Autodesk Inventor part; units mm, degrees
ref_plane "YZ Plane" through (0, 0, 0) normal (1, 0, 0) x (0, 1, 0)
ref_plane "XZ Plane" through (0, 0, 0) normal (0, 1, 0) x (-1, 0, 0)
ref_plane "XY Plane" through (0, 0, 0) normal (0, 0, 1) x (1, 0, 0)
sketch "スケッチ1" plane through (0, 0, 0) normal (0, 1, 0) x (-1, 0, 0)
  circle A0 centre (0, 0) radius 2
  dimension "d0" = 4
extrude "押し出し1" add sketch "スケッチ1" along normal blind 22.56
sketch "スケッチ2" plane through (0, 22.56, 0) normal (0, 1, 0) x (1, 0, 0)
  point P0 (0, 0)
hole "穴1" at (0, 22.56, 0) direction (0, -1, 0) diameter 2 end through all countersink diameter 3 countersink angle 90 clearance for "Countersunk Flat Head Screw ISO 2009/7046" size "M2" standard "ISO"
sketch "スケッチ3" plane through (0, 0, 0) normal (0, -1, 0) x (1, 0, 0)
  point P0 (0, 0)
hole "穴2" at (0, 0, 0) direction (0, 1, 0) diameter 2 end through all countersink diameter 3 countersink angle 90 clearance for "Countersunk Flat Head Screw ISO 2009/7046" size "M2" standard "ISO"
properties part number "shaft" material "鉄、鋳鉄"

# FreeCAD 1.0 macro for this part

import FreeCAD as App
import Part
import Sketcher
from FreeCAD import Vector
Q = App.Units.Quantity

doc = App.newDocument("Part")
body = doc.addObject("PartDesign::Body", "Body")

# Sketch on XZ plane
sketch1 = doc.addObject("Sketcher::SketchObject", "Sketch")
body.addObject(sketch1)
sketch1.AttachmentSupport = (doc.XZ_Plane, [""])
sketch1.MapMode = "FlatFace"
sketch1.addGeometry(Part.Circle(Vector(0, 0, 0), Vector(0, 0, 1), 2), False)
sketch1.addConstraint(Sketcher.Constraint("Coincident", 0, 3, -1, 1))
sketch1.addConstraint(Sketcher.Constraint("Diameter", 0, Q("4 mm")))
pad1 = doc.addObject("PartDesign::Pad", "Pad")
body.addObject(pad1)
pad1.Profile = sketch1
pad1.Length = 22.56
pad1.Reversed = True

# Sketch on XZ plane
sketch2 = doc.addObject("Sketcher::SketchObject", "Sketch001")
body.addObject(sketch2)
sketch2.AttachmentSupport = (doc.XZ_Plane, [""])
sketch2.MapMode = "FlatFace"
sketch2.AttachmentOffset = App.Placement(Vector(0, 0, -22.56), App.Rotation())
sketch2.addGeometry(Part.Circle(Vector(0, 0, 0), Vector(0, 0, 1), 1), False)
sketch2.addConstraint(Sketcher.Constraint("Coincident", 0, 3, -1, 1))
sketch2.addConstraint(Sketcher.Constraint("Diameter", 0, Q("2 mm")))
doc.recompute()
hole = doc.addObject("PartDesign::Hole", "Hole")
body.addObject(hole)
hole.Profile = sketch2
hole.ThreadType = "None"
hole.Diameter = 2
hole.DepthType = "ThroughAll"
hole.HoleCutType = "Countersink"
hole.HoleCutDiameter = 3
hole.HoleCutCountersinkAngle = 90
hole.Reversed = True

# Sketch on XZ plane
sketch3 = doc.addObject("Sketcher::SketchObject", "Sketch002")
body.addObject(sketch3)
sketch3.AttachmentSupport = (doc.XZ_Plane, [""])
sketch3.MapMode = "FlatFace"
sketch3.addGeometry(Part.Circle(Vector(0, 0, 0), Vector(0, 0, 1), 1), False)
sketch3.addConstraint(Sketcher.Constraint("Coincident", 0, 3, -1, 1))
sketch3.addConstraint(Sketcher.Constraint("Diameter", 0, Q("2 mm")))
doc.recompute()
hole2 = doc.addObject("PartDesign::Hole", "Hole001")
body.addObject(hole2)
hole2.Profile = sketch3
hole2.ThreadType = "None"
hole2.Diameter = 2
hole2.DepthType = "ThroughAll"
hole2.HoleCutType = "Countersink"
hole2.HoleCutDiameter = 3
hole2.HoleCutCountersinkAngle = 90

doc.recompute()
